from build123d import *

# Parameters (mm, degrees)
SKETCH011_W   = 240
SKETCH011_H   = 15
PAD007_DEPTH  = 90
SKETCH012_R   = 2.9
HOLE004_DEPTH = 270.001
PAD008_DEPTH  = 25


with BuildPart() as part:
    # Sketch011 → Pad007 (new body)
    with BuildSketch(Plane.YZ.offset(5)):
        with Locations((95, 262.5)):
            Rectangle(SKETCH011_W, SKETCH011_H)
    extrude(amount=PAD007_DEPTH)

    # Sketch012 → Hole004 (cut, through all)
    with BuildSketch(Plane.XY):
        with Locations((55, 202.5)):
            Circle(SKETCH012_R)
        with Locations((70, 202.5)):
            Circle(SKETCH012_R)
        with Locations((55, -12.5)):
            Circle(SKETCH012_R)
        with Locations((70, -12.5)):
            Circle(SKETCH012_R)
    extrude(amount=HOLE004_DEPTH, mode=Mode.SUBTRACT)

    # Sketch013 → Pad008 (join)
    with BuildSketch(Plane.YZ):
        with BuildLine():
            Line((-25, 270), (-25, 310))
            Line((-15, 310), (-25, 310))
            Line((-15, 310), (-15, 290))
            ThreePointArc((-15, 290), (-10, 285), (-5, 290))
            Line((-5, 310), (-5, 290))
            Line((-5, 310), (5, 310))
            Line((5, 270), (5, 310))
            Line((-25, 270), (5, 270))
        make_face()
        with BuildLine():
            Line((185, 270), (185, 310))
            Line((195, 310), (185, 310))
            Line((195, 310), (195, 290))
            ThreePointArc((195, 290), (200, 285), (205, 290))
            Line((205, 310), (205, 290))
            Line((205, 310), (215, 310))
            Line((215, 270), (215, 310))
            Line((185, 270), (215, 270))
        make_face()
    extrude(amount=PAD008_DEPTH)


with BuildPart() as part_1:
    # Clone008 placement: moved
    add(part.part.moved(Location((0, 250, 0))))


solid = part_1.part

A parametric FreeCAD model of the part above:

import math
import FreeCAD as App
import Part
import Sketcher
from FreeCAD import Vector
Q = App.Units.Quantity

doc = App.newDocument("Part")
body = doc.addObject("PartDesign::Body", "Body")

# Sketch on YZ plane
sketch1 = doc.addObject("Sketcher::SketchObject", "Sketch")
body.addObject(sketch1)
sketch1.AttachmentSupport = (doc.YZ_Plane, [""])
sketch1.MapMode = "FlatFace"
sketch1.AttachmentOffset = App.Placement(Vector(0, 0, 5), App.Rotation())
sketch1.addGeometry([
    Part.LineSegment(Vector(-25, 270, 0), Vector(-25, 255, 0)),
    Part.LineSegment(Vector(-25, 255, 0), Vector(215, 255, 0)),
    Part.LineSegment(Vector(215, 255, 0), Vector(215, 270, 0)),
    Part.LineSegment(Vector(215, 270, 0), Vector(-25, 270, 0)),
], False)
sketch1.addConstraint([
    Sketcher.Constraint("Coincident", 0, 2, 1, 1),
    Sketcher.Constraint("Coincident", 1, 2, 2, 1),
    Sketcher.Constraint("Coincident", 2, 2, 3, 1),
    Sketcher.Constraint("Coincident", 3, 2, 0, 1),
    Sketcher.Constraint("Vertical", 0),
    Sketcher.Constraint("Horizontal", 1),
    Sketcher.Constraint("Vertical", 2),
    Sketcher.Constraint("Horizontal", 3),
    Sketcher.Constraint("DistanceX", 1, 1, 1, 2, Q("240 mm")),
    Sketcher.Constraint("DistanceY", 0, 2, 0, 1, Q("15 mm")),
    Sketcher.Constraint("DistanceX", 0, 2, -1, 1, Q("25 mm")),
    Sketcher.Constraint("DistanceY", -1, 1, 0, 2, Q("255 mm")),
])
pad1 = doc.addObject("PartDesign::Pad", "Pad")
body.addObject(pad1)
pad1.Profile = sketch1
pad1.Length = 90

# Sketch on XY plane
sketch2 = doc.addObject("Sketcher::SketchObject", "Sketch001")
body.addObject(sketch2)
sketch2.AttachmentSupport = (doc.XY_Plane, [""])
sketch2.MapMode = "FlatFace"
sketch2.addGeometry([
    Part.Circle(Vector(55, 202.5, 0), Vector(0, 0, 1), 2.9),
    Part.Circle(Vector(70, 202.5, 0), Vector(0, 0, 1), 2.9),
    Part.Circle(Vector(55, -12.5, 0), Vector(0, 0, 1), 2.9),
    Part.Circle(Vector(70, -12.5, 0), Vector(0, 0, 1), 2.9),
], False)
sketch2.addConstraint([
    Sketcher.Constraint("Equal", 0, 1),
    Sketcher.Constraint("Equal", 1, 2),
    Sketcher.Constraint("Equal", 2, 3),
    Sketcher.Constraint("Horizontal", 0, 3, 1, 3),
    Sketcher.Constraint("Horizontal", 2, 3, 3, 3),
    Sketcher.Constraint("Vertical", 0, 3, 2, 3),
    Sketcher.Constraint("Vertical", 1, 3, 3, 3),
    Sketcher.Constraint("Diameter", 0, Q("5.8 mm")),
    Sketcher.Constraint("DistanceX", -1, 1, 0, 3, Q("55 mm")),
    Sketcher.Constraint("DistanceX", -1, 1, 1, 3, Q("70 mm")),
    Sketcher.Constraint("DistanceY", 2, 3, 0, 3, Q("215 mm")),
    Sketcher.Constraint("DistanceY", -1, 1, 0, 3, Q("202.5 mm")),
])
pocket1 = doc.addObject("PartDesign::Pocket", "Pocket")
body.addObject(pocket1)
pocket1.Profile = sketch2
pocket1.Type = "ThroughAll"
pocket1.Reversed = True

# Sketch on YZ plane
sketch3 = doc.addObject("Sketcher::SketchObject", "Sketch002")
body.addObject(sketch3)
sketch3.AttachmentSupport = (doc.YZ_Plane, [""])
sketch3.MapMode = "FlatFace"
sketch3.addGeometry([
    Part.LineSegment(Vector(-25, 310, 0), Vector(-25, 270, 0)),  # 0
    Part.LineSegment(Vector(-25, 270, 0), Vector(5, 270, 0)),  # 1
    Part.LineSegment(Vector(5, 270, 0), Vector(5, 310, 0)),  # 2
    Part.LineSegment(Vector(5, 310, 0), Vector(-5, 310, 0)),  # 3
    Part.LineSegment(Vector(-5, 310, 0), Vector(-5, 290, 0)),  # 4
    Part.ArcOfCircle(Part.Circle(Vector(-10, 290, 0), Vector(0, 0, 1), 5), math.radians(180), math.radians(360)),  # 5
    Part.LineSegment(Vector(-15, 290, 0), Vector(-15, 310, 0)),  # 6
    Part.LineSegment(Vector(-15, 310, 0), Vector(-25, 310, 0)),  # 7
    Part.LineSegment(Vector(185, 310, 0), Vector(185, 270, 0)),  # 8
    Part.LineSegment(Vector(185, 270, 0), Vector(215, 270, 0)),  # 9
    Part.LineSegment(Vector(215, 270, 0), Vector(215, 310, 0)),  # 10
    Part.LineSegment(Vector(215, 310, 0), Vector(205, 310, 0)),  # 11
    Part.LineSegment(Vector(205, 310, 0), Vector(205, 290, 0)),  # 12
    Part.ArcOfCircle(Part.Circle(Vector(200, 290, 0), Vector(0, 0, 1), 5), math.radians(180), math.radians(360)),  # 13
    Part.LineSegment(Vector(195, 290, 0), Vector(195, 310, 0)),  # 14
    Part.LineSegment(Vector(195, 310, 0), Vector(185, 310, 0)),  # 15
], False)
sketch3.addConstraint([
    Sketcher.Constraint("Coincident", 0, 2, 1, 1),
    Sketcher.Constraint("Coincident", 1, 2, 2, 1),
    Sketcher.Constraint("Coincident", 2, 2, 3, 1),
    Sketcher.Constraint("Coincident", 3, 2, 4, 1),
    Sketcher.Constraint("Tangent", 4, 2, 5, 2),
    Sketcher.Constraint("Tangent", 5, 1, 6, 1),
    Sketcher.Constraint("Coincident", 6, 2, 7, 1),
    Sketcher.Constraint("Coincident", 7, 2, 0, 1),
    Sketcher.Constraint("Coincident", 8, 2, 9, 1),
    Sketcher.Constraint("Coincident", 9, 2, 10, 1),
    Sketcher.Constraint("Coincident", 10, 2, 11, 1),
    Sketcher.Constraint("Coincident", 11, 2, 12, 1),
    Sketcher.Constraint("Tangent", 12, 2, 13, 2),
    Sketcher.Constraint("Tangent", 13, 1, 14, 1),
    Sketcher.Constraint("Coincident", 14, 2, 15, 1),
    Sketcher.Constraint("Coincident", 15, 2, 8, 1),
    Sketcher.Constraint("Vertical", 0),
    Sketcher.Constraint("Horizontal", 1),
    Sketcher.Constraint("Vertical", 2),
    Sketcher.Constraint("Horizontal", 3),
    Sketcher.Constraint("Vertical", 4),
    Sketcher.Constraint("Vertical", 6),
    Sketcher.Constraint("Horizontal", 7),
    Sketcher.Constraint("Vertical", 8),
    Sketcher.Constraint("Horizontal", 9),
    Sketcher.Constraint("Vertical", 10),
    Sketcher.Constraint("Horizontal", 11),
    Sketcher.Constraint("Vertical", 12),
    Sketcher.Constraint("Vertical", 14),
    Sketcher.Constraint("Horizontal", 15),
    Sketcher.Constraint("Equal", 5, 13),
    Sketcher.Constraint("Horizontal", 5, 3, 13, 3),
    Sketcher.Constraint("Horizontal", 3, 2, 6, 2),
    Sketcher.Constraint("Horizontal", 1, 2, 8, 2),
    Sketcher.Constraint("Horizontal", 7, 2, 10, 2),
    Sketcher.Constraint("Horizontal", 11, 2, 14, 2),
    Sketcher.Constraint("Equal", 3, 7),
    Sketcher.Constraint("Equal", 1, 9),
    Sketcher.Constraint("Equal", 7, 11),
    Sketcher.Constraint("Radius", 5, Q("5 mm")),
    Sketcher.Constraint("DistanceX", 1, 1, 1, 2, Q("30 mm")),
    Sketcher.Constraint("DistanceY", 0, 2, 0, 1, Q("40 mm")),
    Sketcher.Constraint("DistanceY", 4, 2, 4, 1, Q("20 mm")),
    Sketcher.Constraint("DistanceX", 5, 3, -1, 1, Q("10 mm")),
    Sketcher.Constraint("DistanceY", -1, 1, 5, 3, Q("290 mm")),
    Sketcher.Constraint("DistanceX", -1, 1, 13, 3, Q("200 mm")),
])
pad2 = doc.addObject("PartDesign::Pad", "Pad001")
body.addObject(pad2)
pad2.Profile = sketch3
pad2.Length = 25
body2 = doc.addObject("PartDesign::Body", "Body001")
doc.recompute()

body.Placement = App.Placement(Vector(0, 250, 0), App.Rotation(Vector(0, 0, 1), 0))
boolean = doc.addObject("PartDesign::Boolean", "Boolean")
body2.addObject(boolean)
boolean.Type = "Fuse"
boolean.addObjects([body])

doc.recompute()
